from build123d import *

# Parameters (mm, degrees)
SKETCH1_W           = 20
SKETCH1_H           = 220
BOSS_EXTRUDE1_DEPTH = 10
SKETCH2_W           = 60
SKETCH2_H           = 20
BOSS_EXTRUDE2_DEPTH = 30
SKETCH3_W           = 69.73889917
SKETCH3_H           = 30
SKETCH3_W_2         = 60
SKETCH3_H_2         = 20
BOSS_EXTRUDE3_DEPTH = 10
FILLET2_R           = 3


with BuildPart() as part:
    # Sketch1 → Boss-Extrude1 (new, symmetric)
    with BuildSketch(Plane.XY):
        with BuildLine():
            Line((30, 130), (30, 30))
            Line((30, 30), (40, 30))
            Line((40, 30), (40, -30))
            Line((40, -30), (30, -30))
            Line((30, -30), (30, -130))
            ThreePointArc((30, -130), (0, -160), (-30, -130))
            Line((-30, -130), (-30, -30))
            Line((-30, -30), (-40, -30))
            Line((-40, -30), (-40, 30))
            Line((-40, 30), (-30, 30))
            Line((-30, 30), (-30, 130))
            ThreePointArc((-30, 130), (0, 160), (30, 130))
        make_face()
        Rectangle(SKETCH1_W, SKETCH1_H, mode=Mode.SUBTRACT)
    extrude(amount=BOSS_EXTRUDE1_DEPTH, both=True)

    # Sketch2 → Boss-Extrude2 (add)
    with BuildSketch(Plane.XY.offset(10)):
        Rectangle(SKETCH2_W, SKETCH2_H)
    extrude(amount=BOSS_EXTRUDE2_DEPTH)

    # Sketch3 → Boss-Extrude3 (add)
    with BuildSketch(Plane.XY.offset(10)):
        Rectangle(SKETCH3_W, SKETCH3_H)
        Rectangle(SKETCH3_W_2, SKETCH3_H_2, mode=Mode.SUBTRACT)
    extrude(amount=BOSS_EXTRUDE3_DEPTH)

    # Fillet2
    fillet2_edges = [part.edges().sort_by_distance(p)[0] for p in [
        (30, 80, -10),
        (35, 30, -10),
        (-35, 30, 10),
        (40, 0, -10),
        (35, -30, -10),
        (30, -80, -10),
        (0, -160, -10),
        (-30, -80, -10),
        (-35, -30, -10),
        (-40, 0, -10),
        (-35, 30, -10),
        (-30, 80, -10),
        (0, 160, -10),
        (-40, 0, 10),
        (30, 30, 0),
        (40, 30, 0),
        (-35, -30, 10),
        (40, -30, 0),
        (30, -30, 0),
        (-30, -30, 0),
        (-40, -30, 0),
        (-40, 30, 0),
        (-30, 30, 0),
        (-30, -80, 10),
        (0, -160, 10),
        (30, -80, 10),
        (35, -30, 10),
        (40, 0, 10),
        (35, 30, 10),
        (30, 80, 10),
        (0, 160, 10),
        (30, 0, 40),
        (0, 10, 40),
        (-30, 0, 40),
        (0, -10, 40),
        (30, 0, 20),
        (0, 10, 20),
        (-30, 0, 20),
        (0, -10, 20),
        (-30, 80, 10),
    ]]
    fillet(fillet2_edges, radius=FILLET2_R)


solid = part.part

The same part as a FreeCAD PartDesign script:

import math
import FreeCAD as App
import Part
import Sketcher

V = App.Vector


def edges_at(feature, points):
    """Names of the edges that pass closest to the given points."""
    edges = feature.Shape.Edges
    near = lambda p: min(range(len(edges)), key=lambda i: edges[i].distToShape(Part.Vertex(*p))[0])
    return sorted({f"Edge{near(p) + 1}" for p in points})

doc = App.newDocument("Part")
body = doc.addObject("PartDesign::Body", "Body")

# Sketch on XY plane
sketch1 = body.newObject("Sketcher::SketchObject", "Sketch")
sketch1.AttachmentSupport = (doc.getObject("XY_Plane"), [""])
sketch1.MapMode = "FlatFace"
sketch1.addGeometry(Part.LineSegment(V(30, 30, 0), V(30, 130, 0)), False)
sketch1.addGeometry(Part.ArcOfCircle(Part.Circle(V(0, 130, 0), V(0, 0, 1), 30), math.radians(0), math.radians(180)), False)
sketch1.addGeometry(Part.LineSegment(V(-30, 130, 0), V(-30, 30, 0)), False)
sketch1.addGeometry(Part.LineSegment(V(-30, 30, 0), V(-40, 30, 0)), False)
sketch1.addGeometry(Part.LineSegment(V(-40, 30, 0), V(-40, -30, 0)), False)
sketch1.addGeometry(Part.LineSegment(V(-40, -30, 0), V(-30, -30, 0)), False)
sketch1.addGeometry(Part.LineSegment(V(-30, -30, 0), V(-30, -130, 0)), False)
sketch1.addGeometry(Part.ArcOfCircle(Part.Circle(V(0, -130, 0), V(0, 0, 1), 30), math.radians(180), math.radians(360)), False)
sketch1.addGeometry(Part.LineSegment(V(30, -130, 0), V(30, -30, 0)), False)
sketch1.addGeometry(Part.LineSegment(V(30, -30, 0), V(40, -30, 0)), False)
sketch1.addGeometry(Part.LineSegment(V(40, -30, 0), V(40, 30, 0)), False)
sketch1.addGeometry(Part.LineSegment(V(40, 30, 0), V(30, 30, 0)), False)
sketch1.addGeometry(Part.LineSegment(V(-10, -110, 0), V(-10, 110, 0)), False)
sketch1.addGeometry(Part.LineSegment(V(-10, 110, 0), V(10, 110, 0)), False)
sketch1.addGeometry(Part.LineSegment(V(10, 110, 0), V(10, -110, 0)), False)
sketch1.addGeometry(Part.LineSegment(V(10, -110, 0), V(-10, -110, 0)), False)
sketch1.addConstraint(Sketcher.Constraint("Tangent", 0, 2, 1, 1))
sketch1.addConstraint(Sketcher.Constraint("Tangent", 1, 2, 2, 1))
sketch1.addConstraint(Sketcher.Constraint("Coincident", 2, 2, 3, 1))
sketch1.addConstraint(Sketcher.Constraint("Coincident", 3, 2, 4, 1))
sketch1.addConstraint(Sketcher.Constraint("Coincident", 4, 2, 5, 1))
sketch1.addConstraint(Sketcher.Constraint("Coincident", 5, 2, 6, 1))
sketch1.addConstraint(Sketcher.Constraint("Tangent", 6, 2, 7, 1))
sketch1.addConstraint(Sketcher.Constraint("Tangent", 7, 2, 8, 1))
sketch1.addConstraint(Sketcher.Constraint("Coincident", 8, 2, 9, 1))
sketch1.addConstraint(Sketcher.Constraint("Coincident", 9, 2, 10, 1))
sketch1.addConstraint(Sketcher.Constraint("Coincident", 10, 2, 11, 1))
sketch1.addConstraint(Sketcher.Constraint("Coincident", 11, 2, 0, 1))
sketch1.addConstraint(Sketcher.Constraint("Coincident", 12, 2, 13, 1))
sketch1.addConstraint(Sketcher.Constraint("Coincident", 13, 2, 14, 1))
sketch1.addConstraint(Sketcher.Constraint("Coincident", 14, 2, 15, 1))
sketch1.addConstraint(Sketcher.Constraint("Coincident", 15, 2, 12, 1))
sketch1.addConstraint(Sketcher.Constraint("Vertical", 0))
sketch1.addConstraint(Sketcher.Constraint("Vertical", 2))
sketch1.addConstraint(Sketcher.Constraint("Horizontal", 3))
sketch1.addConstraint(Sketcher.Constraint("Vertical", 4))
sketch1.addConstraint(Sketcher.Constraint("Horizontal", 5))
sketch1.addConstraint(Sketcher.Constraint("Vertical", 6))
sketch1.addConstraint(Sketcher.Constraint("Vertical", 8))
sketch1.addConstraint(Sketcher.Constraint("Horizontal", 9))
sketch1.addConstraint(Sketcher.Constraint("Vertical", 10))
sketch1.addConstraint(Sketcher.Constraint("Horizontal", 11))
sketch1.addConstraint(Sketcher.Constraint("Vertical", 12))
sketch1.addConstraint(Sketcher.Constraint("Horizontal", 13))
sketch1.addConstraint(Sketcher.Constraint("Vertical", 14))
sketch1.addConstraint(Sketcher.Constraint("Horizontal", 15))
sketch1.addConstraint(Sketcher.Constraint("Equal", 1, 7))
sketch1.addConstraint(Sketcher.Constraint("Symmetric", 1, 3, 7, 3, -1, 1))
sketch1.addConstraint(Sketcher.Constraint("Symmetric", 3, 2, 9, 2, -1, 1))
sketch1.addConstraint(Sketcher.Constraint("Symmetric", 12, 2, 14, 2, -1, 1))
sketch1.addConstraint(Sketcher.Constraint("Symmetric", 5, 2, 8, 2, -2))
sketch1.addConstraint(Sketcher.Constraint("Horizontal", 3, 2, 10, 2))
sketch1.addConstraint(Sketcher.Constraint("Radius", 1, 30.0))
sketch1.addConstraint(Sketcher.Constraint("DistanceX", 3, 2, 3, 1, 10.0))
sketch1.addConstraint(Sketcher.Constraint("DistanceX", 13, 1, 13, 2, 20.0))
sketch1.addConstraint(Sketcher.Constraint("DistanceY", 0, 1, 0, 2, 100.0))
sketch1.addConstraint(Sketcher.Constraint("DistanceY", 4, 2, 4, 1, 60.0))
sketch1.addConstraint(Sketcher.Constraint("DistanceY", 12, 1, 12, 2, 220.0))
pad1 = body.newObject("PartDesign::Pad", "Pad")
pad1.Profile = sketch1
pad1.Length = 20
pad1.Midplane = True

# Sketch on XY plane
sketch2 = body.newObject("Sketcher::SketchObject", "Sketch001")
sketch2.AttachmentSupport = (doc.getObject("XY_Plane"), [""])
sketch2.MapMode = "FlatFace"
sketch2.AttachmentOffset = App.Placement(V(0, 0, 10), App.Rotation())
sketch2.addGeometry(Part.LineSegment(V(-30, 10, 0), V(-30, -10, 0)), False)
sketch2.addGeometry(Part.LineSegment(V(-30, -10, 0), V(30, -10, 0)), False)
sketch2.addGeometry(Part.LineSegment(V(30, -10, 0), V(30, 10, 0)), False)
sketch2.addGeometry(Part.LineSegment(V(30, 10, 0), V(-30, 10, 0)), False)
sketch2.addConstraint(Sketcher.Constraint("Coincident", 0, 2, 1, 1))
sketch2.addConstraint(Sketcher.Constraint("Coincident", 1, 2, 2, 1))
sketch2.addConstraint(Sketcher.Constraint("Coincident", 2, 2, 3, 1))
sketch2.addConstraint(Sketcher.Constraint("Coincident", 3, 2, 0, 1))
sketch2.addConstraint(Sketcher.Constraint("Vertical", 0))
sketch2.addConstraint(Sketcher.Constraint("Horizontal", 1))
sketch2.addConstraint(Sketcher.Constraint("Vertical", 2))
sketch2.addConstraint(Sketcher.Constraint("Horizontal", 3))
sketch2.addConstraint(Sketcher.Constraint("Symmetric", 0, 2, 2, 2, -1, 1))
sketch2.addConstraint(Sketcher.Constraint("DistanceX", 1, 1, 1, 2, 60.0))
sketch2.addConstraint(Sketcher.Constraint("DistanceY", 0, 2, 0, 1, 20.0))
pad2 = body.newObject("PartDesign::Pad", "Pad001")
pad2.Profile = sketch2
pad2.Length = 30

# Sketch on XY plane
sketch3 = body.newObject("Sketcher::SketchObject", "Sketch002")
sketch3.AttachmentSupport = (doc.getObject("XY_Plane"), [""])
sketch3.MapMode = "FlatFace"
sketch3.AttachmentOffset = App.Placement(V(0, 0, 10), App.Rotation())
sketch3.addGeometry(Part.LineSegment(V(-35, 15, 0), V(-35, -15, 0)), False)
sketch3.addGeometry(Part.LineSegment(V(-35, -15, 0), V(35, -15, 0)), False)
sketch3.addGeometry(Part.LineSegment(V(35, -15, 0), V(35, 15, 0)), False)
sketch3.addGeometry(Part.LineSegment(V(35, 15, 0), V(-35, 15, 0)), False)
sketch3.addGeometry(Part.LineSegment(V(30, -10, 0), V(-30, -10, 0)), False)
sketch3.addGeometry(Part.LineSegment(V(-30, -10, 0), V(-30, 10, 0)), False)
sketch3.addGeometry(Part.LineSegment(V(-30, 10, 0), V(30, 10, 0)), False)
sketch3.addGeometry(Part.LineSegment(V(30, 10, 0), V(30, -10, 0)), False)
sketch3.addConstraint(Sketcher.Constraint("Coincident", 0, 2, 1, 1))
sketch3.addConstraint(Sketcher.Constraint("Coincident", 1, 2, 2, 1))
sketch3.addConstraint(Sketcher.Constraint("Coincident", 2, 2, 3, 1))
sketch3.addConstraint(Sketcher.Constraint("Coincident", 3, 2, 0, 1))
sketch3.addConstraint(Sketcher.Constraint("Coincident", 4, 2, 5, 1))
sketch3.addConstraint(Sketcher.Constraint("Coincident", 5, 2, 6, 1))
sketch3.addConstraint(Sketcher.Constraint("Coincident", 6, 2, 7, 1))
sketch3.addConstraint(Sketcher.Constraint("Coincident", 7, 2, 4, 1))
sketch3.addConstraint(Sketcher.Constraint("Vertical", 0))
sketch3.addConstraint(Sketcher.Constraint("Horizontal", 1))
sketch3.addConstraint(Sketcher.Constraint("Vertical", 2))
sketch3.addConstraint(Sketcher.Constraint("Horizontal", 3))
sketch3.addConstraint(Sketcher.Constraint("Horizontal", 4))
sketch3.addConstraint(Sketcher.Constraint("Vertical", 5))
sketch3.addConstraint(Sketcher.Constraint("Horizontal", 6))
sketch3.addConstraint(Sketcher.Constraint("Vertical", 7))
sketch3.addConstraint(Sketcher.Constraint("Symmetric", 0, 2, 2, 2, -1, 1))
sketch3.addConstraint(Sketcher.Constraint("Symmetric", 4, 2, 6, 2, -1, 1))
sketch3.addConstraint(Sketcher.Constraint("DistanceX", 4, 2, 4, 1, 60.0))
sketch3.addConstraint(Sketcher.Constraint("DistanceY", 0, 2, 0, 1, 30.0))
sketch3.addConstraint(Sketcher.Constraint("DistanceY", 5, 1, 5, 2, 20.0))
sketch3.addConstraint(Sketcher.Constraint("DistanceX", 1, 1, 1, 2, 69.738899))
pad3 = body.newObject("PartDesign::Pad", "Pad002")
pad3.Profile = sketch3
pad3.Length = 10
doc.recompute()

fillet = body.newObject("PartDesign::Fillet", "Fillet")
fillet.Base = (pad3, edges_at(pad3, [
    (30, 80, -10),
    (35, 30, -10),
    (-35, 30, 10),
    (40, 0, -10),
    (35, -30, -10),
    (30, -80, -10),
    (0, -160, -10),
    (-30, -80, -10),
    (-35, -30, -10),
    (-40, 0, -10),
    (-35, 30, -10),
    (-30, 80, -10),
    (0, 160, -10),
    (-40, 0, 10),
    (30, 30, 0),
    (40, 30, 0),
    (-35, -30, 10),
    (40, -30, 0),
    (30, -30, 0),
    (-30, -30, 0),
    (-40, -30, 0),
    (-40, 30, 0),
    (-30, 30, 0),
    (-30, -80, 10),
    (0, -160, 10),
    (30, -80, 10),
    (35, -30, 10),
    (40, 0, 10),
    (35, 30, 10),
    (30, 80, 10),
    (0, 160, 10),
    (30, 0, 40),
    (0, 10, 40),
    (-30, 0, 40),
    (0, -10, 40),
    (30, 0, 20),
    (0, 10, 20),
    (-30, 0, 20),
    (0, -10, 20),
    (-30, 80, 10),
]))
fillet.Radius = 3

doc.recompute()
